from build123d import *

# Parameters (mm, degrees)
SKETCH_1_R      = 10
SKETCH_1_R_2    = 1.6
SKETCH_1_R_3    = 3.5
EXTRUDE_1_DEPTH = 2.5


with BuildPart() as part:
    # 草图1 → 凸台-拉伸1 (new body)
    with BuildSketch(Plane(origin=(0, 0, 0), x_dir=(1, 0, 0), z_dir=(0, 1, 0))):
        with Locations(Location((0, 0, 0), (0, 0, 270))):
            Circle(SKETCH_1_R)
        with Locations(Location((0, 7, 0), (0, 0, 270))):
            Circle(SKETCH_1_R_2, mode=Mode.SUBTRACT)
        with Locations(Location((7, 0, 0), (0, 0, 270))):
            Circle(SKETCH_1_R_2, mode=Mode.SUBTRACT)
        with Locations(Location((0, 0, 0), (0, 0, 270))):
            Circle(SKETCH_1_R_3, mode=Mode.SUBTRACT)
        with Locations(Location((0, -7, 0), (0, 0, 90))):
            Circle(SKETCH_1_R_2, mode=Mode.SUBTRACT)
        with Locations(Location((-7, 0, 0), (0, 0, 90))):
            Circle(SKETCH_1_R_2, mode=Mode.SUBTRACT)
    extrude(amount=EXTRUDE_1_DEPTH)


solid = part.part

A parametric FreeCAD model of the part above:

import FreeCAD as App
import Part
import Sketcher

V = App.Vector
Q = App.Units.Quantity

doc = App.newDocument("Part")
params = doc.addObject("Spreadsheet::Sheet", "Params")
for row, (alias, value) in enumerate([
    ("sketch1_diameter", "20 mm"),
    ("sketch1_diameter2", "7 mm"),
    ("sketch1_diameter3", "3.2 mm"),
    ("pad1_length", "2.5 mm"),
], start=1):
    params.set(f"A{row}", alias)
    params.set(f"B{row}", "=" + value)
    params.setAlias(f"B{row}", alias)

body = doc.addObject("PartDesign::Body", "Body")

sketch1 = body.newObject("Sketcher::SketchObject", "Sketch")
sketch1.AttachmentSupport = (doc.getObject("XZ_Plane"), [""])
sketch1.MapMode = "FlatFace"
sketch1.addGeometry(Part.Circle(V(0, 0, 0), V(0, 0, 1), 10), False)
sketch1.addGeometry(Part.Circle(V(0, -7, 0), V(0, 0, 1), 1.6), False)
sketch1.addGeometry(Part.Circle(V(-7, 0, 0), V(0, 0, 1), 1.6), False)
sketch1.addGeometry(Part.Circle(V(0, 0, 0), V(0, 0, 1), 3.5), False)
sketch1.addGeometry(Part.Circle(V(7, 0, 0), V(0, 0, 1), 1.6), False)
sketch1.addGeometry(Part.Circle(V(0, 7, 0), V(0, 0, 1), 1.6), False)
sketch1.addConstraint(Sketcher.Constraint("Coincident", 0, 3, -1, 1))
sketch1.addConstraint(Sketcher.Constraint("Coincident", 3, 3, -1, 1))
sketch1.addConstraint(Sketcher.Constraint("Equal", 1, 2))
sketch1.addConstraint(Sketcher.Constraint("Equal", 2, 4))
sketch1.addConstraint(Sketcher.Constraint("Equal", 4, 5))
sketch1.addConstraint(Sketcher.Constraint("Symmetric", 2, 3, 4, 3, -1, 1))
sketch1.addConstraint(Sketcher.Constraint("Symmetric", 1, 3, 5, 3, -1, 1))
sketch1.addConstraint(Sketcher.Constraint("PointOnObject", 1, 3, -2))
sketch1.addConstraint(Sketcher.Constraint("PointOnObject", 2, 3, -1))
sketch1.addConstraint(Sketcher.Constraint("Diameter", 0, Q("20 mm")))
sketch1.addConstraint(Sketcher.Constraint("Diameter", 3, Q("7 mm")))
sketch1.addConstraint(Sketcher.Constraint("Diameter", 1, Q("3.2 mm")))
sketch1.addConstraint(Sketcher.Constraint("DistanceY", 1, 3, -1, 1, Q("7 mm")))
sketch1.addConstraint(Sketcher.Constraint("DistanceX", 2, 3, -1, 1, Q("7 mm")))
sketch1.setExpression("Constraints[9]", "Params.sketch1_diameter")
sketch1.setExpression("Constraints[10]", "Params.sketch1_diameter2")
sketch1.setExpression("Constraints[11]", "Params.sketch1_diameter3")
pad1 = body.newObject("PartDesign::Pad", "Pad")
pad1.Profile = sketch1
pad1.setExpression("Length", "Params.pad1_length")
pad1.Reversed = True

doc.recompute()
